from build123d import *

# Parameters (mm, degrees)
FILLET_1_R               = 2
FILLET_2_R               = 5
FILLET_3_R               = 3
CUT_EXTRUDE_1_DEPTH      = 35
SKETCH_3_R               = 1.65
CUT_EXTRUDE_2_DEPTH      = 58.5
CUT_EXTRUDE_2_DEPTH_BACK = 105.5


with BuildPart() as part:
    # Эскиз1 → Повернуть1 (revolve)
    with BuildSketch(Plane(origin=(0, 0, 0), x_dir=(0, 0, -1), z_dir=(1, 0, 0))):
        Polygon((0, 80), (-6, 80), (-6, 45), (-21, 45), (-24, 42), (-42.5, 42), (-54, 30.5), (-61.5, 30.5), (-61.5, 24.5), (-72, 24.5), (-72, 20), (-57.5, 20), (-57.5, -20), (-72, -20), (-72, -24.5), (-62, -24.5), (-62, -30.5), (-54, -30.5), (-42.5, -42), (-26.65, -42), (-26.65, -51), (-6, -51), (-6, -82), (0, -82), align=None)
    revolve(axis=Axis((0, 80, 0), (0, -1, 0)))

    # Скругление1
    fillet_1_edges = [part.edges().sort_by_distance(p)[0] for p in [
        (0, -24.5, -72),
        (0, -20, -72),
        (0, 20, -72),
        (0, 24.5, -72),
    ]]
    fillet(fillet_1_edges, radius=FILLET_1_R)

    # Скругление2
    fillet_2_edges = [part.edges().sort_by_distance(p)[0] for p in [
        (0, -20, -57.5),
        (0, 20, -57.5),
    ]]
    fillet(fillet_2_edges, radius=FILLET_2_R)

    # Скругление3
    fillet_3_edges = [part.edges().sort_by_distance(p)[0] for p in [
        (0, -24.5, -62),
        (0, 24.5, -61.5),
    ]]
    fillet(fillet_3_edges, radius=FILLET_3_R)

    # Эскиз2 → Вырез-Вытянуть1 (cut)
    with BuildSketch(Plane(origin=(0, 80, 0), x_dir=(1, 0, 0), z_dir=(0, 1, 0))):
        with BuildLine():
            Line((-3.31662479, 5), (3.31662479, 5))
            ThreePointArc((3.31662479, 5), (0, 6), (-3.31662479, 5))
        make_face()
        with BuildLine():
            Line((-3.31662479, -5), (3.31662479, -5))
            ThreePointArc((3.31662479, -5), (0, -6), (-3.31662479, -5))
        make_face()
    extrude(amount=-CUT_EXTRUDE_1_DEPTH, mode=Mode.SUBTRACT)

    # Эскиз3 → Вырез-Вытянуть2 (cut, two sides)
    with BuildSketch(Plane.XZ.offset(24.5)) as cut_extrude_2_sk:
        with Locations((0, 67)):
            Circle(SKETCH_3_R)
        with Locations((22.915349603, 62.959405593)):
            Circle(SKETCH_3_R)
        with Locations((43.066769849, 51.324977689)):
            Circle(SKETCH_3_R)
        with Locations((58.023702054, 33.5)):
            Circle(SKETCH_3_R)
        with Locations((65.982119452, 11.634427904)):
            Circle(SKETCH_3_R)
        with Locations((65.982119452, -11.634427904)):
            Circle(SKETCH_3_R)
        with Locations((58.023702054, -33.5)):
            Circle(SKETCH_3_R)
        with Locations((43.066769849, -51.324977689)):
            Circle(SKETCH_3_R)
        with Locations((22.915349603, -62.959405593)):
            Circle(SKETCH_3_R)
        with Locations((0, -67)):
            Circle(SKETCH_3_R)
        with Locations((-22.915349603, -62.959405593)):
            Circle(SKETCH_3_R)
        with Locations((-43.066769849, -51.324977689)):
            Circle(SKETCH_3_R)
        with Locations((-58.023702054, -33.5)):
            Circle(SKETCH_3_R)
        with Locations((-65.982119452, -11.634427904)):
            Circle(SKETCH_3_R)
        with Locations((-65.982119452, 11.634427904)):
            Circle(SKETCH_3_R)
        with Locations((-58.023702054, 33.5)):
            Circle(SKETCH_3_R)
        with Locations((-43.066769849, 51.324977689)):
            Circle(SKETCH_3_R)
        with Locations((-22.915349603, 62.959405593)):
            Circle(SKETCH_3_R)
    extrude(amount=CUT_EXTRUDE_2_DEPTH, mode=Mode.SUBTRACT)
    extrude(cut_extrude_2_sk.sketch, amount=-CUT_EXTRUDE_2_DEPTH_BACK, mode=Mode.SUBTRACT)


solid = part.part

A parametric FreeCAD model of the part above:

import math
import FreeCAD as App
import Part
import Sketcher
from FreeCAD import Vector
Q = App.Units.Quantity


def edges_at(feature, points):
    """Names of the edges that pass closest to the given points."""
    edges = feature.Shape.Edges
    near = lambda p: min(range(len(edges)), key=lambda i: edges[i].distToShape(Part.Vertex(*p))[0])
    return sorted({f"Edge{near(p) + 1}" for p in points})

doc = App.newDocument("Part")
params = doc.addObject("Spreadsheet::Sheet", "Params")
for row, (alias, value) in enumerate([
    ("sketch1_width", "35 mm"),
    ("sketch1_width2", "6 mm"),
    ("sketch1_width3", "40 mm"),
    ("sketch1_width4", "9 mm"),
    ("sketch1_width5", "31 mm"),
    ("revolution_angle", "360 deg"),
    ("fillet_radius", "2 mm"),
    ("fillet2_radius", "5 mm"),
    ("fillet3_radius", "3 mm"),
    ("sketch2_radius", "6 mm"),
    ("pocket1_length", "35 mm"),
    ("sketch3_diameter", "3.3 mm"),
], start=1):
    params.set(f"A{row}", alias)
    params.set(f"B{row}", "=" + value)
    params.setAlias(f"B{row}", alias)

body = doc.addObject("PartDesign::Body", "Body")

sketch1 = body.newObject("Sketcher::SketchObject", "Sketch")
sketch1.AttachmentSupport = (doc.getObject("YZ_Plane"), [""])
sketch1.MapMode = "FlatFace"
sketch1.addGeometry(Part.LineSegment(Vector(80, 0, 0), Vector(80, 6, 0)), False)
sketch1.addGeometry(Part.LineSegment(Vector(80, 6, 0), Vector(45, 6, 0)), False)
sketch1.addGeometry(Part.LineSegment(Vector(45, 6, 0), Vector(45, 21, 0)), False)
sketch1.addGeometry(Part.LineSegment(Vector(45, 21, 0), Vector(42, 24, 0)), False)
sketch1.addGeometry(Part.LineSegment(Vector(42, 24, 0), Vector(42, 42.5, 0)), False)
sketch1.addGeometry(Part.LineSegment(Vector(42, 42.5, 0), Vector(30.5, 54, 0)), False)
sketch1.addGeometry(Part.LineSegment(Vector(30.5, 54, 0), Vector(30.5, 61.5, 0)), False)
sketch1.addGeometry(Part.LineSegment(Vector(30.5, 61.5, 0), Vector(24.5, 61.5, 0)), False)
sketch1.addGeometry(Part.LineSegment(Vector(24.5, 61.5, 0), Vector(24.5, 72, 0)), False)
sketch1.addGeometry(Part.LineSegment(Vector(24.5, 72, 0), Vector(20, 72, 0)), False)
sketch1.addGeometry(Part.LineSegment(Vector(20, 72, 0), Vector(20, 57.5, 0)), False)
sketch1.addGeometry(Part.LineSegment(Vector(20, 57.5, 0), Vector(-20, 57.5, 0)), False)
sketch1.addGeometry(Part.LineSegment(Vector(-20, 57.5, 0), Vector(-20, 72, 0)), False)
sketch1.addGeometry(Part.LineSegment(Vector(-20, 72, 0), Vector(-24.5, 72, 0)), False)
sketch1.addGeometry(Part.LineSegment(Vector(-24.5, 72, 0), Vector(-24.5, 62, 0)), False)
sketch1.addGeometry(Part.LineSegment(Vector(-24.5, 62, 0), Vector(-30.5, 62, 0)), False)
sketch1.addGeometry(Part.LineSegment(Vector(-30.5, 62, 0), Vector(-30.5, 54, 0)), False)
sketch1.addGeometry(Part.LineSegment(Vector(-30.5, 54, 0), Vector(-42, 42.5, 0)), False)
sketch1.addGeometry(Part.LineSegment(Vector(-42, 42.5, 0), Vector(-42, 26.6, 0)), False)
sketch1.addGeometry(Part.LineSegment(Vector(-42, 26.6, 0), Vector(-51, 26.6, 0)), False)
sketch1.addGeometry(Part.LineSegment(Vector(-51, 26.6, 0), Vector(-51, 6, 0)), False)
sketch1.addGeometry(Part.LineSegment(Vector(-51, 6, 0), Vector(-82, 6, 0)), False)
sketch1.addGeometry(Part.LineSegment(Vector(-82, 6, 0), Vector(-82, 0, 0)), False)
sketch1.addGeometry(Part.LineSegment(Vector(-82, 0, 0), Vector(80, 0, 0)), False)
sketch1.addConstraint(Sketcher.Constraint("Coincident", 0, 2, 1, 1))
sketch1.addConstraint(Sketcher.Constraint("Coincident", 1, 2, 2, 1))
sketch1.addConstraint(Sketcher.Constraint("Coincident", 2, 2, 3, 1))
sketch1.addConstraint(Sketcher.Constraint("Coincident", 3, 2, 4, 1))
sketch1.addConstraint(Sketcher.Constraint("Coincident", 4, 2, 5, 1))
sketch1.addConstraint(Sketcher.Constraint("Coincident", 5, 2, 6, 1))
sketch1.addConstraint(Sketcher.Constraint("Coincident", 6, 2, 7, 1))
sketch1.addConstraint(Sketcher.Constraint("Coincident", 7, 2, 8, 1))
sketch1.addConstraint(Sketcher.Constraint("Coincident", 8, 2, 9, 1))
sketch1.addConstraint(Sketcher.Constraint("Coincident", 9, 2, 10, 1))
sketch1.addConstraint(Sketcher.Constraint("Coincident", 10, 2, 11, 1))
sketch1.addConstraint(Sketcher.Constraint("Coincident", 11, 2, 12, 1))
sketch1.addConstraint(Sketcher.Constraint("Coincident", 12, 2, 13, 1))
sketch1.addConstraint(Sketcher.Constraint("Coincident", 13, 2, 14, 1))
sketch1.addConstraint(Sketcher.Constraint("Coincident", 14, 2, 15, 1))
sketch1.addConstraint(Sketcher.Constraint("Coincident", 15, 2, 16, 1))
sketch1.addConstraint(Sketcher.Constraint("Coincident", 16, 2, 17, 1))
sketch1.addConstraint(Sketcher.Constraint("Coincident", 17, 2, 18, 1))
sketch1.addConstraint(Sketcher.Constraint("Coincident", 18, 2, 19, 1))
sketch1.addConstraint(Sketcher.Constraint("Coincident", 19, 2, 20, 1))
sketch1.addConstraint(Sketcher.Constraint("Coincident", 20, 2, 21, 1))
sketch1.addConstraint(Sketcher.Constraint("Coincident", 21, 2, 22, 1))
sketch1.addConstraint(Sketcher.Constraint("Coincident", 22, 2, 23, 1))
sketch1.addConstraint(Sketcher.Constraint("Coincident", 23, 2, 0, 1))
sketch1.addConstraint(Sketcher.Constraint("Vertical", 0))
sketch1.addConstraint(Sketcher.Constraint("Horizontal", 1))
sketch1.addConstraint(Sketcher.Constraint("Vertical", 2))
sketch1.addConstraint(Sketcher.Constraint("Vertical", 4))
sketch1.addConstraint(Sketcher.Constraint("Vertical", 6))
sketch1.addConstraint(Sketcher.Constraint("Horizontal", 7))
sketch1.addConstraint(Sketcher.Constraint("Vertical", 8))
sketch1.addConstraint(Sketcher.Constraint("Horizontal", 9))
sketch1.addConstraint(Sketcher.Constraint("Vertical", 10))
sketch1.addConstraint(Sketcher.Constraint("Horizontal", 11))
sketch1.addConstraint(Sketcher.Constraint("Vertical", 12))
sketch1.addConstraint(Sketcher.Constraint("Horizontal", 13))
sketch1.addConstraint(Sketcher.Constraint("Vertical", 14))
sketch1.addConstraint(Sketcher.Constraint("Horizontal", 15))
sketch1.addConstraint(Sketcher.Constraint("Vertical", 16))
sketch1.addConstraint(Sketcher.Constraint("Vertical", 18))
sketch1.addConstraint(Sketcher.Constraint("Horizontal", 19))
sketch1.addConstraint(Sketcher.Constraint("Vertical", 20))
sketch1.addConstraint(Sketcher.Constraint("Horizontal", 21))
sketch1.addConstraint(Sketcher.Constraint("Vertical", 22))
sketch1.addConstraint(Sketcher.Constraint("Horizontal", 23))
sketch1.addConstraint(Sketcher.Constraint("Symmetric", 9, 2, 12, 2, -2))
sketch1.addConstraint(Sketcher.Constraint("Symmetric", 5, 2, 16, 2, -2))
sketch1.addConstraint(Sketcher.Constraint("Symmetric", 4, 2, 17, 2, -2))
sketch1.addConstraint(Sketcher.Constraint("PointOnObject", 22, 2, -1))
sketch1.addConstraint(Sketcher.Constraint("Parallel", 3, 5))
sketch1.addConstraint(Sketcher.Constraint("Perpendicular", 5, 17))
sketch1.addConstraint(Sketcher.Constraint("Horizontal", 1, 2, 20, 2))
sketch1.addConstraint(Sketcher.Constraint("Equal", 9, 13))
sketch1.addConstraint(Sketcher.Constraint("Equal", 15, 0))
sketch1.addConstraint(Sketcher.Constraint("DistanceX", 1, 2, 1, 1, Q("35 mm")))
sketch1.addConstraint(Sketcher.Constraint("DistanceX", 7, 2, 7, 1, Q("6 mm")))
sketch1.addConstraint(Sketcher.Constraint("DistanceX", 11, 2, 11, 1, Q("40 mm")))
sketch1.addConstraint(Sketcher.Constraint("DistanceX", 19, 2, 19, 1, Q("9 mm")))
sketch1.addConstraint(Sketcher.Constraint("DistanceX", 21, 2, 21, 1, Q("31 mm")))
sketch1.addConstraint(Sketcher.Constraint("DistanceX", 23, 1, 23, 2, Q("162 mm")))
sketch1.addConstraint(Sketcher.Constraint("DistanceY", 2, 1, 2, 2, Q("15 mm")))
sketch1.addConstraint(Sketcher.Constraint("DistanceY", 14, 2, 14, 1, Q("10 mm")))
sketch1.addConstraint(Sketcher.Constraint("DistanceY", 16, 2, 16, 1, Q("8 mm")))
sketch1.addConstraint(Sketcher.Constraint("DistanceX", 9, 2, 9, 1, Q("4.5 mm")))
sketch1.addConstraint(Sketcher.Constraint("DistanceY", 4, 1, 4, 2, Q("18.5 mm")))
sketch1.addConstraint(Sketcher.Constraint("DistanceY", 6, 1, 6, 2, Q("7.5 mm")))
sketch1.addConstraint(Sketcher.Constraint("DistanceY", 10, 2, 10, 1, Q("14.5 mm")))
sketch1.addConstraint(Sketcher.Constraint("DistanceX", -1, 1, 0, 2, Q("80 mm")))
sketch1.addConstraint(Sketcher.Constraint("DistanceY", 18, 2, 18, 1, Q("15.85 mm")))
sketch1.setExpression("Constraints[54]", "Params.sketch1_width")
sketch1.setExpression("Constraints[55]", "Params.sketch1_width2")
sketch1.setExpression("Constraints[56]", "Params.sketch1_width3")
sketch1.setExpression("Constraints[57]", "Params.sketch1_width4")
sketch1.setExpression("Constraints[58]", "Params.sketch1_width5")
revolution = body.newObject("PartDesign::Revolution", "Revolution")
revolution.Profile = sketch1
revolution.ReferenceAxis = (sketch1, ["H_Axis"])
revolution.setExpression("Angle", "Params.revolution_angle")
doc.recompute()

fillet = body.newObject("PartDesign::Fillet", "Fillet")
fillet.Base = (revolution, edges_at(revolution, [
    (0, -24.5, -72),
    (0, -20, -72),
    (0, 20, -72),
    (0, 24.5, -72),
]))
fillet.setExpression("Radius", "Params.fillet_radius")
doc.recompute()

fillet2 = body.newObject("PartDesign::Fillet", "Fillet001")
fillet2.Base = (fillet, edges_at(fillet, [(0, -20, -57.5), (0, 20, -57.5)]))
fillet2.setExpression("Radius", "Params.fillet2_radius")
doc.recompute()

fillet3 = body.newObject("PartDesign::Fillet", "Fillet002")
fillet3.Base = (fillet2, edges_at(fillet2, [(0, -24.5, -62), (0, 24.5, -61.5)]))
fillet3.setExpression("Radius", "Params.fillet3_radius")

sketch2 = body.newObject("Sketcher::SketchObject", "Sketch001")
sketch2.AttachmentSupport = (doc.getObject("XZ_Plane"), [""])
sketch2.MapMode = "FlatFace"
sketch2.AttachmentOffset = App.Placement(Vector(0, 0, -80), App.Rotation())
sketch2.addGeometry(Part.LineSegment(Vector(-3, -5, 0), Vector(3, -5, 0)), False)
sketch2.addGeometry(Part.ArcOfCircle(Part.Circle(Vector(0, 0, 0), Vector(0, 0, 1), 6), math.radians(-124), math.radians(-56)), False)
sketch2.addGeometry(Part.LineSegment(Vector(3, 5, 0), Vector(-3, 5, 0)), False)
sketch2.addGeometry(Part.ArcOfCircle(Part.Circle(Vector(0, 0, 0), Vector(0, 0, 1), 6), math.radians(56), math.radians(124)), False)
sketch2.addConstraint(Sketcher.Constraint("Coincident", 0, 1, 1, 1))
sketch2.addConstraint(Sketcher.Constraint("Coincident", 1, 2, 0, 2))
sketch2.addConstraint(Sketcher.Constraint("Coincident", 2, 1, 3, 1))
sketch2.addConstraint(Sketcher.Constraint("Coincident", 3, 2, 2, 2))
sketch2.addConstraint(Sketcher.Constraint("Horizontal", 0))
sketch2.addConstraint(Sketcher.Constraint("Horizontal", 2))
sketch2.addConstraint(Sketcher.Constraint("Coincident", 1, 3, -1, 1))
sketch2.addConstraint(Sketcher.Constraint("Coincident", 3, 3, -1, 1))
sketch2.addConstraint(Sketcher.Constraint("Equal", 1, 3))
sketch2.addConstraint(Sketcher.Constraint("Vertical", 1, 2, 2, 1))
sketch2.addConstraint(Sketcher.Constraint("Radius", 1, Q("6 mm")))
sketch2.addConstraint(Sketcher.Constraint("DistanceY", 0, 1, -1, 1, Q("5 mm")))
sketch2.setExpression("Constraints[10]", "Params.sketch2_radius")
pocket1 = body.newObject("PartDesign::Pocket", "Pocket")
pocket1.Profile = sketch2
pocket1.setExpression("Length", "Params.pocket1_length")
pocket1.Reversed = True

sketch3 = body.newObject("Sketcher::SketchObject", "Sketch002")
sketch3.AttachmentSupport = (doc.getObject("XZ_Plane"), [""])
sketch3.MapMode = "FlatFace"
sketch3.AttachmentOffset = App.Placement(Vector(0, 0, 24.5), App.Rotation())
sketch3.addGeometry(Part.Circle(Vector(0, 67, 0), Vector(0, 0, 1), 1.6), False)
sketch3.addGeometry(Part.Circle(Vector(22.9, 63, 0), Vector(0, 0, 1), 1.6), False)
sketch3.addGeometry(Part.Circle(Vector(43.1, 51.3, 0), Vector(0, 0, 1), 1.6), False)
sketch3.addGeometry(Part.Circle(Vector(58, 33.5, 0), Vector(0, 0, 1), 1.6), False)
sketch3.addGeometry(Part.Circle(Vector(66, 11.6, 0), Vector(0, 0, 1), 1.6), False)
sketch3.addGeometry(Part.Circle(Vector(66, -11.6, 0), Vector(0, 0, 1), 1.6), False)
sketch3.addGeometry(Part.Circle(Vector(58, -33.5, 0), Vector(0, 0, 1), 1.6), False)
sketch3.addGeometry(Part.Circle(Vector(43.1, -51.3, 0), Vector(0, 0, 1), 1.6), False)
sketch3.addGeometry(Part.Circle(Vector(22.9, -63, 0), Vector(0, 0, 1), 1.6), False)
sketch3.addGeometry(Part.Circle(Vector(0, -67, 0), Vector(0, 0, 1), 1.6), False)
sketch3.addGeometry(Part.Circle(Vector(-22.9, -63, 0), Vector(0, 0, 1), 1.6), False)
sketch3.addGeometry(Part.Circle(Vector(-43.1, -51.3, 0), Vector(0, 0, 1), 1.6), False)
sketch3.addGeometry(Part.Circle(Vector(-58, -33.5, 0), Vector(0, 0, 1), 1.6), False)
sketch3.addGeometry(Part.Circle(Vector(-66, -11.6, 0), Vector(0, 0, 1), 1.6), False)
sketch3.addGeometry(Part.Circle(Vector(-66, 11.6, 0), Vector(0, 0, 1), 1.6), False)
sketch3.addGeometry(Part.Circle(Vector(-58, 33.5, 0), Vector(0, 0, 1), 1.6), False)
sketch3.addGeometry(Part.Circle(Vector(-43.1, 51.3, 0), Vector(0, 0, 1), 1.6), False)
sketch3.addGeometry(Part.Circle(Vector(-22.9, 63, 0), Vector(0, 0, 1), 1.6), False)
sketch3.addConstraint(Sketcher.Constraint("Equal", 0, 1))
sketch3.addConstraint(Sketcher.Constraint("Equal", 1, 2))
sketch3.addConstraint(Sketcher.Constraint("Equal", 2, 3))
sketch3.addConstraint(Sketcher.Constraint("Equal", 3, 4))
sketch3.addConstraint(Sketcher.Constraint("Equal", 4, 5))
sketch3.addConstraint(Sketcher.Constraint("Equal", 5, 6))
sketch3.addConstraint(Sketcher.Constraint("Equal", 6, 7))
sketch3.addConstraint(Sketcher.Constraint("Equal", 7, 8))
sketch3.addConstraint(Sketcher.Constraint("Equal", 8, 9))
sketch3.addConstraint(Sketcher.Constraint("Equal", 9, 10))
sketch3.addConstraint(Sketcher.Constraint("Equal", 10, 11))
sketch3.addConstraint(Sketcher.Constraint("Equal", 11, 12))
sketch3.addConstraint(Sketcher.Constraint("Equal", 12, 13))
sketch3.addConstraint(Sketcher.Constraint("Equal", 13, 14))
sketch3.addConstraint(Sketcher.Constraint("Equal", 14, 15))
sketch3.addConstraint(Sketcher.Constraint("Equal", 15, 16))
sketch3.addConstraint(Sketcher.Constraint("Equal", 16, 17))
sketch3.addConstraint(Sketcher.Constraint("Symmetric", 0, 3, 9, 3, -1, 1))
sketch3.addConstraint(Sketcher.Constraint("Symmetric", 1, 3, 10, 3, -1, 1))
sketch3.addConstraint(Sketcher.Constraint("Symmetric", 2, 3, 11, 3, -1, 1))
sketch3.addConstraint(Sketcher.Constraint("Symmetric", 3, 3, 12, 3, -1, 1))
sketch3.addConstraint(Sketcher.Constraint("Symmetric", 4, 3, 13, 3, -1, 1))
sketch3.addConstraint(Sketcher.Constraint("Symmetric", 5, 3, 14, 3, -1, 1))
sketch3.addConstraint(Sketcher.Constraint("Symmetric", 6, 3, 15, 3, -1, 1))
sketch3.addConstraint(Sketcher.Constraint("Symmetric", 7, 3, 16, 3, -1, 1))
sketch3.addConstraint(Sketcher.Constraint("Symmetric", 8, 3, 17, 3, -1, 1))
sketch3.addConstraint(Sketcher.Constraint("Symmetric", 8, 3, 10, 3, -2))
sketch3.addConstraint(Sketcher.Constraint("Symmetric", 7, 3, 11, 3, -2))
sketch3.addConstraint(Sketcher.Constraint("Symmetric", 6, 3, 12, 3, -2))
sketch3.addConstraint(Sketcher.Constraint("Symmetric", 5, 3, 13, 3, -2))
sketch3.addConstraint(Sketcher.Constraint("PointOnObject", 0, 3, -2))
sketch3.addConstraint(Sketcher.Constraint("Diameter", 0, Q("3.3 mm")))
sketch3.addConstraint(Sketcher.Constraint("DistanceY", -1, 1, 0, 3, Q("67 mm")))
sketch3.addConstraint(Sketcher.Constraint("DistanceY", 6, 3, 3, 3, Q("67 mm")))
sketch3.addConstraint(Sketcher.Constraint("DistanceX", 10, 3, 8, 3, Q("45.830699 mm")))
sketch3.addConstraint(Sketcher.Constraint("DistanceX", -1, 1, 2, 3, Q("43.06677 mm")))
sketch3.addConstraint(Sketcher.Constraint("DistanceX", -1, 1, 4, 3, Q("65.982119 mm")))
sketch3.addConstraint(Sketcher.Constraint("DistanceY", 4, 3, 2, 3, Q("39.69055 mm")))
sketch3.addConstraint(Sketcher.Constraint("DistanceX", 10, 3, 6, 3, Q("80.939052 mm")))
sketch3.addConstraint(Sketcher.Constraint("DistanceY", -1, 1, 1, 3, Q("62.959406 mm")))
sketch3.addConstraint(Sketcher.Constraint("DistanceY", -1, 1, 2, 3, Q("51.324978 mm")))
sketch3.setExpression("Constraints[31]", "Params.sketch3_diameter")
pocket2 = body.newObject("PartDesign::Pocket", "Pocket001")
pocket2.Profile = sketch3
pocket2.Type = "ThroughAll"
pocket2.Midplane = True

doc.recompute()
